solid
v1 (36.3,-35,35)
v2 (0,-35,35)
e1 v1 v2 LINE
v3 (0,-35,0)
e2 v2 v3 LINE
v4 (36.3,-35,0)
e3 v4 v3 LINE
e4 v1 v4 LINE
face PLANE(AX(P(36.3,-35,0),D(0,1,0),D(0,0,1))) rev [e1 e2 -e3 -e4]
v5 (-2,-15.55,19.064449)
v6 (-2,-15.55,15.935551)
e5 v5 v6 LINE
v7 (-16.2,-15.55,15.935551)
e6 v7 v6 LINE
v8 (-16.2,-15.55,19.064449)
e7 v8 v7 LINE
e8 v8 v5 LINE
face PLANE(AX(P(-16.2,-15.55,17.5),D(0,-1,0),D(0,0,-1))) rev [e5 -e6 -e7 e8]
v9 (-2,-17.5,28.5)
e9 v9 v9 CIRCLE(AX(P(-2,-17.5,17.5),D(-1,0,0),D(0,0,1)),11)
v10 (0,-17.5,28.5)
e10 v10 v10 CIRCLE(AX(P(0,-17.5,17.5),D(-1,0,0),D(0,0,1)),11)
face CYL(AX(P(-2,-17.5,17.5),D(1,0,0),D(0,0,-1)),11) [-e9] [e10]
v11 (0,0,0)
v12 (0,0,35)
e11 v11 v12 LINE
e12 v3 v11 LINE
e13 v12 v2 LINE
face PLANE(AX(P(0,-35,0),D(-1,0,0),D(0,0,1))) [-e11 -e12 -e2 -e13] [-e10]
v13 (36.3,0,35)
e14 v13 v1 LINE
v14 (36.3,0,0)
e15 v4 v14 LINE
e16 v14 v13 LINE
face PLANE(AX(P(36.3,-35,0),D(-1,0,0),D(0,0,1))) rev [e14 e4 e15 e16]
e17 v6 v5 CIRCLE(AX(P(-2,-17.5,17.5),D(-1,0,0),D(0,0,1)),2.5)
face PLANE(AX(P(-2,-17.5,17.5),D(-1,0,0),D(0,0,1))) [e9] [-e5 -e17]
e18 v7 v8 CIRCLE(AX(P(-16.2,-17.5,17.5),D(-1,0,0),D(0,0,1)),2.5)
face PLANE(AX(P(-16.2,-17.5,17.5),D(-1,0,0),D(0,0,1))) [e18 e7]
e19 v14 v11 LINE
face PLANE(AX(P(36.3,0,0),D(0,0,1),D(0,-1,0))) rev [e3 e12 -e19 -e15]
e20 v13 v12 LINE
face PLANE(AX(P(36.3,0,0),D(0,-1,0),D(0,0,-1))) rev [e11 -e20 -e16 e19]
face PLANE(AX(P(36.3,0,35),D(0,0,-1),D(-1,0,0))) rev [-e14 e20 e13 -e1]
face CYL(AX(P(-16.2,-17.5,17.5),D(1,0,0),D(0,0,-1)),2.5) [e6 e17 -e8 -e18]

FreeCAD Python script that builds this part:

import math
import FreeCAD as App
import Part
import Sketcher

V = App.Vector


def add_polygon(sketch, points):
    """Adds a closed chain of lines whose ends are joined by coincident constraints."""
    first, n = sketch.GeometryCount, len(points)
    for a, b in zip(points, points[1:] + points[:1]):
        sketch.addGeometry(Part.LineSegment(App.Vector(*a, 0), App.Vector(*b, 0)), False)
    for i in range(n):
        sketch.addConstraint(Sketcher.Constraint("Coincident", first + i, 2, first + (i + 1) % n, 1))

doc = App.newDocument("Part")
body = doc.addObject("PartDesign::Body", "Body")

# Sketch on YZ plane
sketch1 = body.newObject("Sketcher::SketchObject", "Sketch")
sketch1.AttachmentSupport = (doc.getObject("YZ_Plane"), [""])
sketch1.MapMode = "FlatFace"
add_polygon(sketch1, [(0, 35), (-35, 35), (-35, 0), (0, 0)])  # lines 0-3
sketch1.addConstraint(Sketcher.Constraint("Horizontal", 0))
sketch1.addConstraint(Sketcher.Constraint("Vertical", 1))
sketch1.addConstraint(Sketcher.Constraint("Horizontal", 2))
sketch1.addConstraint(Sketcher.Constraint("Vertical", 3))
sketch1.addConstraint(Sketcher.Constraint("Coincident", 2, 2, -1, 1))
sketch1.addConstraint(Sketcher.Constraint("Equal", 2, 1))
sketch1.addConstraint(Sketcher.Constraint("DistanceX", 0, 2, 0, 1, 35.0))
pad1 = body.newObject("PartDesign::Pad", "Pad")
pad1.Profile = sketch1
pad1.Length = 36.3

# Sketch on YZ plane
sketch2 = body.newObject("Sketcher::SketchObject", "Sketch001")
sketch2.AttachmentSupport = (doc.getObject("YZ_Plane"), [""])
sketch2.MapMode = "FlatFace"
sketch2.addGeometry(Part.Circle(V(-17.5, 17.5, 0), V(0, 0, 1), 11), False)
sketch2.addConstraint(Sketcher.Constraint("Diameter", 0, 22.0))
sketch2.addConstraint(Sketcher.Constraint("DistanceX", 0, 3, -1, 1, 17.5))
sketch2.addConstraint(Sketcher.Constraint("DistanceY", -1, 1, 0, 3, 17.5))
pad2 = body.newObject("PartDesign::Pad", "Pad001")
pad2.Profile = sketch2
pad2.Length = 2
pad2.Reversed = True

# Sketch on YZ plane
sketch3 = body.newObject("Sketcher::SketchObject", "Sketch002")
sketch3.AttachmentSupport = (doc.getObject("YZ_Plane"), [""])
sketch3.MapMode = "FlatFace"
sketch3.AttachmentOffset = App.Placement(V(0, 0, -2), App.Rotation())
sketch3.addGeometry(Part.ArcOfCircle(Part.Circle(V(-17.5, 17.5, 0), V(0, 0, 1), 2.5), math.radians(38.739425), math.radians(321.260575)), False)
sketch3.addGeometry(Part.LineSegment(V(-15.55, 19.064449, 0), V(-15.55, 15.935551, 0)), False)
sketch3.addConstraint(Sketcher.Constraint("Coincident", 0, 1, 1, 1))
sketch3.addConstraint(Sketcher.Constraint("Coincident", 1, 2, 0, 2))
sketch3.addConstraint(Sketcher.Constraint("Vertical", 1))
sketch3.addConstraint(Sketcher.Constraint("Radius", 0, 2.5))
sketch3.addConstraint(Sketcher.Constraint("DistanceX", 0, 3, -1, 1, 17.5))
sketch3.addConstraint(Sketcher.Constraint("DistanceY", -1, 1, 0, 3, 17.5))
sketch3.addConstraint(Sketcher.Constraint("DistanceX", 0, 1, -1, 1, 15.55))
pad3 = body.newObject("PartDesign::Pad", "Pad002")
pad3.Profile = sketch3
pad3.Length = 14.2
pad3.Reversed = True

doc.recompute()
